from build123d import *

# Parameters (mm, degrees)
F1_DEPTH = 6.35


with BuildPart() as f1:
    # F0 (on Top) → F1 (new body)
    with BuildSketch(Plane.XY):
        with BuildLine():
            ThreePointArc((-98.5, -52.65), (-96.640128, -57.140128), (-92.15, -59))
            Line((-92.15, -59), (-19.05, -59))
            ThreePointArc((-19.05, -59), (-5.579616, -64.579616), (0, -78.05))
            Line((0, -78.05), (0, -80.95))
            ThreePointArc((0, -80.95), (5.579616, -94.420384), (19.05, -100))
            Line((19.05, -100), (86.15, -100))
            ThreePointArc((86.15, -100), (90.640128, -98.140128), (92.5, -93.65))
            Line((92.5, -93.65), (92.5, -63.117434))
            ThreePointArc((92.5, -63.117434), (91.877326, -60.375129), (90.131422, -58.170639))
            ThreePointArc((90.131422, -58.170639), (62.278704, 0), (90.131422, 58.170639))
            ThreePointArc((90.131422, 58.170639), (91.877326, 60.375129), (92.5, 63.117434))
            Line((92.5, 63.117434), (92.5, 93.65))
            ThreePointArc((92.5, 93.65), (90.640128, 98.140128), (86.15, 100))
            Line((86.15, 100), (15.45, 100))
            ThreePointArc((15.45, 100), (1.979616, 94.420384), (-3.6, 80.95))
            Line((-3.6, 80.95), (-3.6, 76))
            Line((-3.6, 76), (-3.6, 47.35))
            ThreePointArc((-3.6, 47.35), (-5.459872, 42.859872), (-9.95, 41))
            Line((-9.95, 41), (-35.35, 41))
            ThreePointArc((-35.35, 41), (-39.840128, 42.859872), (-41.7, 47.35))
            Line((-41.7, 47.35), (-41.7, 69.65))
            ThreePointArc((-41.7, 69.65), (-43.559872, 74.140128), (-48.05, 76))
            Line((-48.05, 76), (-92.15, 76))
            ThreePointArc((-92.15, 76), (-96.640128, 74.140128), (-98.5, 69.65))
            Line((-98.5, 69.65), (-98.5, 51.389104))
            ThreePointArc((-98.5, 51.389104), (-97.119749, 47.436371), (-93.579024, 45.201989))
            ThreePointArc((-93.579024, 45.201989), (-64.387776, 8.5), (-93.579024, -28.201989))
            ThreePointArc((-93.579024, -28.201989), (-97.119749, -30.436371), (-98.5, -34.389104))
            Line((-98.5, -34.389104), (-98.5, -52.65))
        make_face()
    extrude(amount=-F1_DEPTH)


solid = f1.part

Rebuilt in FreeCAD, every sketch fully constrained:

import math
import FreeCAD as App
import Part
import Sketcher

V = App.Vector
Q = App.Units.Quantity

doc = App.newDocument("Part")
params = doc.addObject("Spreadsheet::Sheet", "Params")
for row, (alias, value) in enumerate([
    ("sketch1_radius", "6.35 mm"),
    ("sketch1_radius2", "19.050001 mm"),
    ("sketch1_width", "73.1 mm"),
    ("sketch1_width2", "67.1 mm"),
    ("sketch1_width3", "70.7 mm"),
    ("pad1_length", "6.35 mm"),
], start=1):
    params.set(f"A{row}", alias)
    params.set(f"B{row}", "=" + value)
    params.setAlias(f"B{row}", alias)

body = doc.addObject("PartDesign::Body", "Body")

# Sketch on XY plane
sketch1 = body.newObject("Sketcher::SketchObject", "Sketch")
sketch1.AttachmentSupport = (doc.getObject("XY_Plane"), [""])
sketch1.MapMode = "FlatFace"
sketch1.addGeometry([
    Part.ArcOfCircle(Part.Circle(V(-92.15, -52.65, 0), V(0, 0, 1), 6.35), math.radians(-179.999998), math.radians(-90.000002)),  # 0
    Part.LineSegment(V(-92.15, -59, 0), V(-19.05, -59, 0)),  # 1
    Part.ArcOfCircle(Part.Circle(V(-19.050001, -78.050001, 0), V(0, 0, 1), 19.050001), math.radians(0.000002), math.radians(89.999998)),  # 2
    Part.LineSegment(V(0, -78.05, 0), V(0, -80.95, 0)),  # 3
    Part.ArcOfCircle(Part.Circle(V(19.050001, -80.949999, 0), V(0, 0, 1), 19.050001), math.radians(-179.999998), math.radians(-90.000002)),  # 4
    Part.LineSegment(V(19.05, -100, 0), V(86.15, -100, 0)),  # 5
    Part.ArcOfCircle(Part.Circle(V(86.15, -93.65, 0), V(0, 0, 1), 6.35), math.radians(-89.999998), math.radians(-0.000002)),  # 6
    Part.LineSegment(V(92.5, -93.65, 0), V(92.5, -63.117434, 0)),  # 7
    Part.ArcOfCircle(Part.Circle(V(86.149999, -63.117434, 0), V(0, 0, 1), 6.350001), math.radians(0.000002), math.radians(51.171187)),  # 8
    Part.ArcOfCircle(Part.Circle(V(136.950001, 0, 0), V(0, 0, 1), 74.671297), math.radians(128.828814), math.radians(231.171186)),  # 9
    Part.ArcOfCircle(Part.Circle(V(86.149999, 63.117434, 0), V(0, 0, 1), 6.350001), math.radians(-51.171187), math.radians(-0.000002)),  # 10
    Part.LineSegment(V(92.5, 63.117434, 0), V(92.5, 93.65, 0)),  # 11
    Part.ArcOfCircle(Part.Circle(V(86.15, 93.65, 0), V(0, 0, 1), 6.35), math.radians(0.000002), math.radians(89.999998)),  # 12
    Part.LineSegment(V(86.15, 100, 0), V(15.45, 100, 0)),  # 13
    Part.ArcOfCircle(Part.Circle(V(15.450001, 80.949999, 0), V(0, 0, 1), 19.050001), math.radians(90.000002), math.radians(179.999998)),  # 14
    Part.LineSegment(V(-3.6, 80.95, 0), V(-3.6, 47.35, 0)),  # 15
    Part.ArcOfCircle(Part.Circle(V(-9.95, 47.35, 0), V(0, 0, 1), 6.35), math.radians(-89.999998), math.radians(-0.000002)),  # 16
    Part.LineSegment(V(-9.95, 41, 0), V(-35.35, 41, 0)),  # 17
    Part.ArcOfCircle(Part.Circle(V(-35.35, 47.35, 0), V(0, 0, 1), 6.35), math.radians(-179.999998), math.radians(-90.000002)),  # 18
    Part.LineSegment(V(-41.7, 47.35, 0), V(-41.7, 69.65, 0)),  # 19
    Part.ArcOfCircle(Part.Circle(V(-48.05, 69.65, 0), V(0, 0, 1), 6.35), math.radians(0.000002), math.radians(89.999998)),  # 20
    Part.LineSegment(V(-48.05, 76, 0), V(-92.15, 76, 0)),  # 21
    Part.ArcOfCircle(Part.Circle(V(-92.15, 69.65, 0), V(0, 0, 1), 6.35), math.radians(90.000002), math.radians(179.999998)),  # 22
    Part.LineSegment(V(-98.5, 69.65, 0), V(-98.5, 51.389104, 0)),  # 23
    Part.ArcOfCircle(Part.Circle(V(-92.150001, 51.389103, 0), V(0, 0, 1), 6.349999), math.radians(179.999994), math.radians(256.994589)),  # 24
    Part.ArcOfCircle(Part.Circle(V(-102.056, 8.5, 0), V(0, 0, 1), 37.668224), math.radians(-76.994584), math.radians(76.994584)),  # 25
    Part.ArcOfCircle(Part.Circle(V(-92.150001, -34.389103, 0), V(0, 0, 1), 6.349999), math.radians(103.005411), math.radians(180.000006)),  # 26
    Part.LineSegment(V(-98.5, -34.389104, 0), V(-98.5, -52.65, 0)),  # 27
], False)
sketch1.addConstraint([
    Sketcher.Constraint("Tangent", 0, 2, 1, 1),
    Sketcher.Constraint("Tangent", 1, 2, 2, 2),
    Sketcher.Constraint("Tangent", 2, 1, 3, 1),
    Sketcher.Constraint("Tangent", 3, 2, 4, 1),
    Sketcher.Constraint("Tangent", 4, 2, 5, 1),
    Sketcher.Constraint("Tangent", 5, 2, 6, 1),
    Sketcher.Constraint("Tangent", 6, 2, 7, 1),
    Sketcher.Constraint("Tangent", 7, 2, 8, 1),
    Sketcher.Constraint("Tangent", 8, 2, 9, 2),
    Sketcher.Constraint("Tangent", 9, 1, 10, 1),
    Sketcher.Constraint("Tangent", 10, 2, 11, 1),
    Sketcher.Constraint("Tangent", 11, 2, 12, 1),
    Sketcher.Constraint("Tangent", 12, 2, 13, 1),
    Sketcher.Constraint("Tangent", 13, 2, 14, 1),
    Sketcher.Constraint("Tangent", 14, 2, 15, 1),
    Sketcher.Constraint("Tangent", 15, 2, 16, 2),
    Sketcher.Constraint("Tangent", 16, 1, 17, 1),
    Sketcher.Constraint("Tangent", 17, 2, 18, 2),
    Sketcher.Constraint("Tangent", 18, 1, 19, 1),
    Sketcher.Constraint("Tangent", 19, 2, 20, 1),
    Sketcher.Constraint("Tangent", 20, 2, 21, 1),
    Sketcher.Constraint("Tangent", 21, 2, 22, 1),
    Sketcher.Constraint("Tangent", 22, 2, 23, 1),
    Sketcher.Constraint("Tangent", 23, 2, 24, 1),
    Sketcher.Constraint("Tangent", 24, 2, 25, 2),
    Sketcher.Constraint("Tangent", 25, 1, 26, 1),
    Sketcher.Constraint("Tangent", 26, 2, 27, 1),
    Sketcher.Constraint("Tangent", 27, 2, 0, 1),
    Sketcher.Constraint("Horizontal", 1),
    Sketcher.Constraint("Vertical", 3),
    Sketcher.Constraint("Horizontal", 5),
    Sketcher.Constraint("Vertical", 7),
    Sketcher.Constraint("Vertical", 11),
    Sketcher.Constraint("Horizontal", 13),
    Sketcher.Constraint("Vertical", 15),
    Sketcher.Constraint("Horizontal", 17),
    Sketcher.Constraint("Vertical", 19),
    Sketcher.Constraint("Horizontal", 21),
    Sketcher.Constraint("Vertical", 23),
    Sketcher.Constraint("Vertical", 27),
    Sketcher.Constraint("Equal", 2, 4),
    Sketcher.Constraint("Equal", 0, 6),
    Sketcher.Constraint("Equal", 6, 8),
    Sketcher.Constraint("Equal", 8, 10),
    Sketcher.Constraint("Equal", 10, 12),
    Sketcher.Constraint("Equal", 4, 14),
    Sketcher.Constraint("Equal", 12, 16),
    Sketcher.Constraint("Equal", 16, 18),
    Sketcher.Constraint("Equal", 18, 20),
    Sketcher.Constraint("Equal", 20, 22),
    Sketcher.Constraint("Equal", 22, 24),
    Sketcher.Constraint("Equal", 24, 26),
    Sketcher.Constraint("Symmetric", 8, 3, 10, 3, -1),
    Sketcher.Constraint("PointOnObject", 2, 1, -2),
    Sketcher.Constraint("Vertical", 0, 3, 22, 3),
    Sketcher.Constraint("Equal", 7, 11),
    Sketcher.Constraint("Equal", 23, 27),
    Sketcher.Constraint("Radius", 0, Q("6.35 mm")),
    Sketcher.Constraint("Radius", 2, Q("19.050001 mm")),
    Sketcher.Constraint("DistanceX", 1, 1, 1, 2, Q("73.1 mm")),
    Sketcher.Constraint("DistanceX", 5, 1, 5, 2, Q("67.1 mm")),
    Sketcher.Constraint("DistanceX", 13, 2, 13, 1, Q("70.7 mm")),
    Sketcher.Constraint("DistanceX", 17, 2, 17, 1, Q("25.4 mm")),
    Sketcher.Constraint("DistanceY", 3, 2, 3, 1, Q("2.9 mm")),
    Sketcher.Constraint("DistanceY", 15, 2, 15, 1, Q("33.6 mm")),
    Sketcher.Constraint("DistanceY", 19, 1, 19, 2, Q("22.3 mm")),
    Sketcher.Constraint("DistanceY", 0, 2, -1, 1, Q("59 mm")),
    Sketcher.Constraint("DistanceX", 2, 3, 9, 3, Q("156.000001 mm")),
    Sketcher.Constraint("DistanceX", 25, 3, -1, 1, Q("102.056 mm")),
    Sketcher.Constraint("Radius", 9, Q("74.671297 mm")),
    Sketcher.Constraint("Radius", 25, Q("37.668224 mm")),
])
sketch1.setExpression("Constraints[57]", "Params.sketch1_radius")
sketch1.setExpression("Constraints[58]", "Params.sketch1_radius2")
sketch1.setExpression("Constraints[59]", "Params.sketch1_width")
sketch1.setExpression("Constraints[60]", "Params.sketch1_width2")
sketch1.setExpression("Constraints[61]", "Params.sketch1_width3")
pad1 = body.newObject("PartDesign::Pad", "Pad")
pad1.Profile = sketch1
pad1.setExpression("Length", "Params.pad1_length")
pad1.Reversed = True

doc.recompute()
